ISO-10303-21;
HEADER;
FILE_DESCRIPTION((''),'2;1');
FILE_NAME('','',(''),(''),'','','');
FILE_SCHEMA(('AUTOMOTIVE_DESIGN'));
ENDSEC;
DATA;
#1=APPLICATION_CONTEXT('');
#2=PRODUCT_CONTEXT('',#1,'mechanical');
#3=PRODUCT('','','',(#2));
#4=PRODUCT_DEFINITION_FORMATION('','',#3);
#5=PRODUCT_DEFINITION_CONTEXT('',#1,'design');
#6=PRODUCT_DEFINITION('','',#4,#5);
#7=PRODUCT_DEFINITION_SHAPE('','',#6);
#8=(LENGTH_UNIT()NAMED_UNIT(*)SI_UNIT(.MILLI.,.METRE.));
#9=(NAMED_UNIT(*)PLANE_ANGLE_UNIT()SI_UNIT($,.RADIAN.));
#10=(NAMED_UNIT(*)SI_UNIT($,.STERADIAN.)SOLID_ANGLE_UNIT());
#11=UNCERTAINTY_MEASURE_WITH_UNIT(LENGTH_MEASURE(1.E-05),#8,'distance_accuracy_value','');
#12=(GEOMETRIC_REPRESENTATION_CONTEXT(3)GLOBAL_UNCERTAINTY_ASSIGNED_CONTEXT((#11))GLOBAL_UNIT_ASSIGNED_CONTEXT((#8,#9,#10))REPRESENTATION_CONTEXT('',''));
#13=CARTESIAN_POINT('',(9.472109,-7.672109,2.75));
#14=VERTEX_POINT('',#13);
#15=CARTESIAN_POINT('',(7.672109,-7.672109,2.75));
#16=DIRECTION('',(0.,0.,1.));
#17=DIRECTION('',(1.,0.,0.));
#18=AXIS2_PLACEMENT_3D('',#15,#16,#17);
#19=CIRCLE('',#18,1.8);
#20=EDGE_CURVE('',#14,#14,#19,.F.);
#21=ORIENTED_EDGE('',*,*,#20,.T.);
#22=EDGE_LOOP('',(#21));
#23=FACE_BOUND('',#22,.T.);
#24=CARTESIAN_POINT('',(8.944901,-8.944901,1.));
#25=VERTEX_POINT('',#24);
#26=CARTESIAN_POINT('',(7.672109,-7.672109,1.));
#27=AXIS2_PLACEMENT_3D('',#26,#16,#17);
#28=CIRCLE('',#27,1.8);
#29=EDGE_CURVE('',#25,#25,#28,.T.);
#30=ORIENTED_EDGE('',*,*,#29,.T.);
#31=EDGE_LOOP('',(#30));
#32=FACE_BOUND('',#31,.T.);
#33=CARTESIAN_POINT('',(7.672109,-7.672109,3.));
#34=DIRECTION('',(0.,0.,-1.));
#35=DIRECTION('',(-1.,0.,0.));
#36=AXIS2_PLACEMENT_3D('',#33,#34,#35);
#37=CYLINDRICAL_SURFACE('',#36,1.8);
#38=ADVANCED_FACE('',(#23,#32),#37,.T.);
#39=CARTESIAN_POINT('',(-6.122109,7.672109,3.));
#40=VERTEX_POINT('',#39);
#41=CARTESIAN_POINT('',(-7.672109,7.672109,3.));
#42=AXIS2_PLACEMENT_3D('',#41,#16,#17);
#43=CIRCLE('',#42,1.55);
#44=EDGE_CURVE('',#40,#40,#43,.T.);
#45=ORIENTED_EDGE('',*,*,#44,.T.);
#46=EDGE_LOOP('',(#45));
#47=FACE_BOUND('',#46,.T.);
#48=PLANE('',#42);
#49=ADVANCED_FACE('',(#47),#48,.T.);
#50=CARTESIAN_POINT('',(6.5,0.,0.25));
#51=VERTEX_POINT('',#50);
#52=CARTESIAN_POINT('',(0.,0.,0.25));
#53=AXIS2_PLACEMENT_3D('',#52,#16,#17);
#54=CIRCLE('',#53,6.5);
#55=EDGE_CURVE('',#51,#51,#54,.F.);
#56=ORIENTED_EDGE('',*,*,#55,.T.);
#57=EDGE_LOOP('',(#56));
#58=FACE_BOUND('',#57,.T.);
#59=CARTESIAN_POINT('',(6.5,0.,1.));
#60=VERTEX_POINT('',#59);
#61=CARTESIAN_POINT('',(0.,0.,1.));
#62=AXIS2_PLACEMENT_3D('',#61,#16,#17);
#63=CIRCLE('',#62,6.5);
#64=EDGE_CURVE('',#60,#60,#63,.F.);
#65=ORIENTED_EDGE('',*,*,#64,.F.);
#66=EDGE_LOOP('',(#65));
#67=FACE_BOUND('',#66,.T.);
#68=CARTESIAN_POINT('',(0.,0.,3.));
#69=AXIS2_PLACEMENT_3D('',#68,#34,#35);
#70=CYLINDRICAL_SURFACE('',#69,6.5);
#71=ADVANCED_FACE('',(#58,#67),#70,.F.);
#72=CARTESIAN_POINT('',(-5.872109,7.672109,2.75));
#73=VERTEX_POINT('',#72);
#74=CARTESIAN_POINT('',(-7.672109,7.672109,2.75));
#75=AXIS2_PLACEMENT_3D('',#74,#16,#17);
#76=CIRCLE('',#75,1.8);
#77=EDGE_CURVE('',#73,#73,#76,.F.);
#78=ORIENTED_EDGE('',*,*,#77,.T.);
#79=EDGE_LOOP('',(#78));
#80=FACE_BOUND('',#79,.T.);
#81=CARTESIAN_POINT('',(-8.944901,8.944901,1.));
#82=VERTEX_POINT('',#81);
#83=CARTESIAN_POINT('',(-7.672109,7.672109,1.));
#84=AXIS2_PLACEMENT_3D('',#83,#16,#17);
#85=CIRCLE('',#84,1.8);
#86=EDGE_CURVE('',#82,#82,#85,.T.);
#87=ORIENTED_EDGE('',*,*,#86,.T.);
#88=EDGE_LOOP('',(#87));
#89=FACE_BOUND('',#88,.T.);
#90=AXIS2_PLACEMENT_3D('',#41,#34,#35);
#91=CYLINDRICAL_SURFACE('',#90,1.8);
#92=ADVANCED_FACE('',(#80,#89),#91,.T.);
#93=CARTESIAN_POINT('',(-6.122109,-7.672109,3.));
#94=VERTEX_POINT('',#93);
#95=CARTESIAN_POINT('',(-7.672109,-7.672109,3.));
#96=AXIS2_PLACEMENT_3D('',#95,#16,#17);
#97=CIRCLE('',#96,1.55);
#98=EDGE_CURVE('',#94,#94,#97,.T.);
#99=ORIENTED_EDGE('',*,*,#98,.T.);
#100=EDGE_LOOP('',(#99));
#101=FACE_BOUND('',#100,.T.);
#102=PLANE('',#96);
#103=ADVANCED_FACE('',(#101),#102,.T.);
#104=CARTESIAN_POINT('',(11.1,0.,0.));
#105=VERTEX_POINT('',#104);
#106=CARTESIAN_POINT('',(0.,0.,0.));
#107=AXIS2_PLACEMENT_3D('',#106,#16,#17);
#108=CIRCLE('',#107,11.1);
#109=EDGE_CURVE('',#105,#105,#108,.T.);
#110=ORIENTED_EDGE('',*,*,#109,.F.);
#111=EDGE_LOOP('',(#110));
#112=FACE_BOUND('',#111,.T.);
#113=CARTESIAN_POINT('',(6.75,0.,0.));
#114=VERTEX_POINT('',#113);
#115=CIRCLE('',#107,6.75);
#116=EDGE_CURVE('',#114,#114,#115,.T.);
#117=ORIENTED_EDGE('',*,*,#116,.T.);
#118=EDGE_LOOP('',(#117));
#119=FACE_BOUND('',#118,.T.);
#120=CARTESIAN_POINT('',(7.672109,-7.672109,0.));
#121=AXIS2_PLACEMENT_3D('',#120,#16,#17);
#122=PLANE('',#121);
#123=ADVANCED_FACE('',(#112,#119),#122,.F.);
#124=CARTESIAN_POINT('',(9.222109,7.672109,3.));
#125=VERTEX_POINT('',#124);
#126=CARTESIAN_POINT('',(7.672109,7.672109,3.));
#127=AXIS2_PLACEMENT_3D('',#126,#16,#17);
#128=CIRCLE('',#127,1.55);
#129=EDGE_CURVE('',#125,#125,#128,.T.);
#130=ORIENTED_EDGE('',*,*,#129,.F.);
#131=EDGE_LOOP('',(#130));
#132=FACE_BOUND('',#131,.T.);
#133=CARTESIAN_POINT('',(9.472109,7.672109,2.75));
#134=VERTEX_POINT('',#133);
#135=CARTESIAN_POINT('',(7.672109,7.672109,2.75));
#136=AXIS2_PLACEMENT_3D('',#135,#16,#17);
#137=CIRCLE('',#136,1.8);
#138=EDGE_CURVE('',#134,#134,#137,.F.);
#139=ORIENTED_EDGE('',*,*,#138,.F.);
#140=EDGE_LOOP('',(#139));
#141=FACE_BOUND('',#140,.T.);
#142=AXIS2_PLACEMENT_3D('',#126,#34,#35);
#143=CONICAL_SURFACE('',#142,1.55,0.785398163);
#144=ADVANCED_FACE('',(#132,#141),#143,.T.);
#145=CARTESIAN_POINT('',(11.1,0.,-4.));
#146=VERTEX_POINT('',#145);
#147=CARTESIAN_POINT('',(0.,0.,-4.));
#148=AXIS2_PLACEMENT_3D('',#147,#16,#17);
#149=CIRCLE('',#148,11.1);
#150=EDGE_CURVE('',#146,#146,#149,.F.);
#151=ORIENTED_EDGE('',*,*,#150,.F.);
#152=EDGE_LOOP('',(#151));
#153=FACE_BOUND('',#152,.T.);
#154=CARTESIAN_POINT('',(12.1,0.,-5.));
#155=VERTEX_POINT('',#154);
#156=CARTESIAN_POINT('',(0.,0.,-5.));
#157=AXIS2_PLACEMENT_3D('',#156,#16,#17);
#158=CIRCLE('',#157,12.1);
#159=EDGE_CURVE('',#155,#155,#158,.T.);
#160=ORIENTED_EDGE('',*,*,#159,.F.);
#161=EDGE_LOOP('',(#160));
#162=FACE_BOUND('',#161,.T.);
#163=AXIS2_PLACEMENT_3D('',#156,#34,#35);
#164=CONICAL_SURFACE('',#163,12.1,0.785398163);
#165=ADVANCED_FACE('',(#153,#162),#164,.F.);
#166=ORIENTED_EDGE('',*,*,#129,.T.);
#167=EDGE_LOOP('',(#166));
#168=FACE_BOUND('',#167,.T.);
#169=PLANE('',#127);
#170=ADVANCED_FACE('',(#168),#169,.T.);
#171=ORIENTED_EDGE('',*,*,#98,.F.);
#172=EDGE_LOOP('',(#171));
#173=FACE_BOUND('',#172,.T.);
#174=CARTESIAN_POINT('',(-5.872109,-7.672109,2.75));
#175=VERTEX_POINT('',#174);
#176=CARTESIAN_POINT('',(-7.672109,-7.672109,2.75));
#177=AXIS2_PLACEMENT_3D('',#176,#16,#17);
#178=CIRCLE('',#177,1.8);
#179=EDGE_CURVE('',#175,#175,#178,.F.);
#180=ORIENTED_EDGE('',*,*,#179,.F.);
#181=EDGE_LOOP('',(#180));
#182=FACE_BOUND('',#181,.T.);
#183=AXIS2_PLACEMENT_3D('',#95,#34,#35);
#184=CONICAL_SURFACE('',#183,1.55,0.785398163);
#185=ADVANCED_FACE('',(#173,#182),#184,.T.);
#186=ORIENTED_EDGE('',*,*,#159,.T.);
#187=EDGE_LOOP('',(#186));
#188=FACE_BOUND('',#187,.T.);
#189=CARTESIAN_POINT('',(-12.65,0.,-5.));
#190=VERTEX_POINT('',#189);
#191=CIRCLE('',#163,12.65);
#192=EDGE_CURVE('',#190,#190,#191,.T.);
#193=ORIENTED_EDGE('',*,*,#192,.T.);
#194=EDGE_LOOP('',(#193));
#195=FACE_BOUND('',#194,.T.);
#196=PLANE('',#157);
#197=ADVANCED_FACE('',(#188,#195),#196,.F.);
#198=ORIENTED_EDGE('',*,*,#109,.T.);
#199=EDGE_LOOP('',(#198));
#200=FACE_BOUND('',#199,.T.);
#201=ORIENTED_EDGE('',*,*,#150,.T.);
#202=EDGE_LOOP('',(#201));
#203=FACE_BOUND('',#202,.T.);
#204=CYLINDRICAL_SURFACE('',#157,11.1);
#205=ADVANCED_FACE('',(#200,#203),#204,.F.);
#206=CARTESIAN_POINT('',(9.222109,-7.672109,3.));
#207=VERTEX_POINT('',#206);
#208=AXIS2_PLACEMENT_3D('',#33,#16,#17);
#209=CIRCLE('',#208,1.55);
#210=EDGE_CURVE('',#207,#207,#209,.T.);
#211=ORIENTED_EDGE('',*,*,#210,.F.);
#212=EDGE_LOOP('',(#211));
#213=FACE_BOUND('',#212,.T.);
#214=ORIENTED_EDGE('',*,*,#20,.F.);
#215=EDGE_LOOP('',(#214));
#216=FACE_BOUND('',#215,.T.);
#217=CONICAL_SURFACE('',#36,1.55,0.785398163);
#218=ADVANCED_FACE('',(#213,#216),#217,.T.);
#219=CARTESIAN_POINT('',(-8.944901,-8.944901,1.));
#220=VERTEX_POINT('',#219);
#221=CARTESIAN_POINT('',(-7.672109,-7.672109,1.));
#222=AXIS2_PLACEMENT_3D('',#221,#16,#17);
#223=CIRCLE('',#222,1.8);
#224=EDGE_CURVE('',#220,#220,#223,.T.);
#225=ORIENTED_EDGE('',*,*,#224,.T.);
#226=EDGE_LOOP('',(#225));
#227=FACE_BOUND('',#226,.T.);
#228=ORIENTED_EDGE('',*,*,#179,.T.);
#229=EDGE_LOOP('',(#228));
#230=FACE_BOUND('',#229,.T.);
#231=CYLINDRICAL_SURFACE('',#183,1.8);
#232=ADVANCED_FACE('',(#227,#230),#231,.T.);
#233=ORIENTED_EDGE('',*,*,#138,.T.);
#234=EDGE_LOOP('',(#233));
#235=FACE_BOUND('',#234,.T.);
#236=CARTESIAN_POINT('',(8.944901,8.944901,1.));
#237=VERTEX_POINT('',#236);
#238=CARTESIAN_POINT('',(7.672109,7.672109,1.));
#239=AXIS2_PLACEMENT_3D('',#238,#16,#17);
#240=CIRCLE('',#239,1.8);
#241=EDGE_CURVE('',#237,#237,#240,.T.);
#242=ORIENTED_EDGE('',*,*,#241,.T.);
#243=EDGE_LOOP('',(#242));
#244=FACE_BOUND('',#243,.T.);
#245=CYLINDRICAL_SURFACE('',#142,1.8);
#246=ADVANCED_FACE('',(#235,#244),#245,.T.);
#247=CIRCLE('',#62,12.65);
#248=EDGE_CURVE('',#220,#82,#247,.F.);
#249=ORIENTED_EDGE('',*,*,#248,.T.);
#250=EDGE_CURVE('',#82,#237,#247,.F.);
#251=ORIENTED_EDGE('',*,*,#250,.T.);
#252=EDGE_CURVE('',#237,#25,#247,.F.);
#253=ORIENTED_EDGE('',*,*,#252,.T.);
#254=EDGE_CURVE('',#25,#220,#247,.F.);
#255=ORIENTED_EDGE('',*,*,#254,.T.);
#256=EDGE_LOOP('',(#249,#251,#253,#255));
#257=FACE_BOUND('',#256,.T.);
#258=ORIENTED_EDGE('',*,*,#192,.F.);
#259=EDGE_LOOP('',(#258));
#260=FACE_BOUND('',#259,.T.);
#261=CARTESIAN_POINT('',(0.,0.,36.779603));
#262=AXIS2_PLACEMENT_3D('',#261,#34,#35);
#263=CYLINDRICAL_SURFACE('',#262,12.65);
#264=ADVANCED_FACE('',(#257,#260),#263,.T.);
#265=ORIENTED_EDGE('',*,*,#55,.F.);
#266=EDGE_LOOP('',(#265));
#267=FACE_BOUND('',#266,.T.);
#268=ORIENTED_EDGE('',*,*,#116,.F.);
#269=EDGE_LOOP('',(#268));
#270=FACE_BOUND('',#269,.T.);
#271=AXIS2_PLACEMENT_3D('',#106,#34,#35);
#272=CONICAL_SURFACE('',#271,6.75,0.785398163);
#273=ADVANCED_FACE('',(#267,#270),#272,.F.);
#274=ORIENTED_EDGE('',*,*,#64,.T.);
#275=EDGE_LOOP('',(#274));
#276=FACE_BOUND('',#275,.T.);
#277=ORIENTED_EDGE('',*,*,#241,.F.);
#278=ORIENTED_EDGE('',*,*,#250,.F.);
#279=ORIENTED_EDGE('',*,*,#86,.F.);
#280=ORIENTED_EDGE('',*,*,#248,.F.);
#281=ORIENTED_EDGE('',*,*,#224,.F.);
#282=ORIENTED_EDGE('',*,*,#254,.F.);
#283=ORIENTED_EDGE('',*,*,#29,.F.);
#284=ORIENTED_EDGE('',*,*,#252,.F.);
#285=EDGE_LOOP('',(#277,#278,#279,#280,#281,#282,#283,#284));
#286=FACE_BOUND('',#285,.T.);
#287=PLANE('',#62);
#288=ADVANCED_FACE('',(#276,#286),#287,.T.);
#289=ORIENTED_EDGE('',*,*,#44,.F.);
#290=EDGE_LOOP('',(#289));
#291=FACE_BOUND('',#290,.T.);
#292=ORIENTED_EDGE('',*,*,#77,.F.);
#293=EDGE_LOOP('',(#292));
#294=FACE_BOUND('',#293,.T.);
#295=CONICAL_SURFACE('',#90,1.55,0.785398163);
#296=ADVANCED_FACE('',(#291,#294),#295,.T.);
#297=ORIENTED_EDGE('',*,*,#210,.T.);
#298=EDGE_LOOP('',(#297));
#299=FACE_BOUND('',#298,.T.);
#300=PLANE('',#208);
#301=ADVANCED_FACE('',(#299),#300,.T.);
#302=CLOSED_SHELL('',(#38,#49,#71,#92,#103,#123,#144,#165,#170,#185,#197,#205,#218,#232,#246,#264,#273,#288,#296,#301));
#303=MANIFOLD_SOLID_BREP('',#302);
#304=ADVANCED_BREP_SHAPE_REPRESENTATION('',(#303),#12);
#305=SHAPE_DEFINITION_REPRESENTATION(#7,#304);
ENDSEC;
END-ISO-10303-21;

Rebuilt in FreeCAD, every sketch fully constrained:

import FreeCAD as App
import Part
import Sketcher
Q = App.Units.Quantity


def edges_at(feature, points):
    """Names of the edges that pass closest to the given points."""
    edges = feature.Shape.Edges
    near = lambda p: min(range(len(edges)), key=lambda i: edges[i].distToShape(Part.Vertex(*p))[0])
    return sorted({f"Edge{near(p) + 1}" for p in points})

doc = App.newDocument("Part")
body = doc.addObject("PartDesign::Body", "Body")

# Sketch on XY plane
sketch1 = body.newObject("Sketcher::SketchObject", "Sketch")
sketch1.AttachmentSupport = (doc.getObject("XY_Plane"), [""])
sketch1.MapMode = "FlatFace"
sketch1.addGeometry(Part.Circle(App.Vector(0, 0, 0), App.Vector(0, 0, 1), 13), False)
sketch1.addGeometry(Part.Circle(App.Vector(0, 0, 0), App.Vector(0, 0, 1), 11), False)
sketch1.addConstraint(Sketcher.Constraint("Coincident", 0, 3, -1, 1))
sketch1.addConstraint(Sketcher.Constraint("Coincident", 1, 3, -1, 1))
sketch1.addConstraint(Sketcher.Constraint("Diameter", 0, Q("25.2 mm")))
sketch1.addConstraint(Sketcher.Constraint("Diameter", 1, Q("22.2 mm")))
pad1 = body.newObject("PartDesign::Pad", "Pad")
pad1.Profile = sketch1
pad1.Length = 5
pad1.Reversed = True
doc.recompute()

chamfer = body.newObject("PartDesign::Chamfer", "Chamfer")
chamfer.Base = (pad1, edges_at(pad1, [(-11.1, 0, -5)]))
chamfer.Size = 1

# Sketch on XY plane
sketch2 = body.newObject("Sketcher::SketchObject", "Sketch001")
sketch2.AttachmentSupport = (doc.getObject("XY_Plane"), [""])
sketch2.MapMode = "FlatFace"
sketch2.addGeometry(Part.Circle(App.Vector(7.7, -7.7, 0), App.Vector(0, 0, 1), 1.8), False)
sketch2.addGeometry(Part.Circle(App.Vector(-7.7, -7.7, 0), App.Vector(0, 0, 1), 1.8), False)
sketch2.addGeometry(Part.Circle(App.Vector(-7.7, 7.7, 0), App.Vector(0, 0, 1), 1.8), False)
sketch2.addGeometry(Part.Circle(App.Vector(7.7, 7.7, 0), App.Vector(0, 0, 1), 1.8), False)
sketch2.addConstraint(Sketcher.Constraint("Equal", 0, 1))
sketch2.addConstraint(Sketcher.Constraint("Equal", 1, 2))
sketch2.addConstraint(Sketcher.Constraint("Equal", 2, 3))
sketch2.addConstraint(Sketcher.Constraint("Symmetric", 0, 3, 2, 3, -1, 1))
sketch2.addConstraint(Sketcher.Constraint("Symmetric", 1, 3, 3, 3, -1, 1))
sketch2.addConstraint(Sketcher.Constraint("Symmetric", 0, 3, 1, 3, -2))
sketch2.addConstraint(Sketcher.Constraint("Diameter", 0, Q("3.6 mm")))
sketch2.addConstraint(Sketcher.Constraint("DistanceX", -1, 1, 0, 3, Q("7.672109 mm")))
sketch2.addConstraint(Sketcher.Constraint("DistanceY", 0, 3, -1, 1, Q("7.672109 mm")))
pad2 = body.newObject("PartDesign::Pad", "Pad001")
pad2.Profile = sketch2
pad2.Length = 3

# Sketch on XY plane
sketch3 = body.newObject("Sketcher::SketchObject", "Sketch002")
sketch3.AttachmentSupport = (doc.getObject("XY_Plane"), [""])
sketch3.MapMode = "FlatFace"
sketch3.AttachmentOffset = App.Placement(App.Vector(0, 0, 1), App.Rotation())
sketch3.addGeometry(Part.Circle(App.Vector(0, 0, 0), App.Vector(0, 0, 1), 13), False)
sketch3.addConstraint(Sketcher.Constraint("Coincident", 0, 3, -1, 1))
sketch3.addConstraint(Sketcher.Constraint("Diameter", 0, Q("25.2 mm")))
pad3 = body.newObject("PartDesign::Pad", "Pad002")
pad3.Profile = sketch3
pad3.Length = 1
pad3.Reversed = True

# Sketch on XY plane
sketch4 = body.newObject("Sketcher::SketchObject", "Sketch003")
sketch4.AttachmentSupport = (doc.getObject("XY_Plane"), [""])
sketch4.MapMode = "FlatFace"
sketch4.addGeometry(Part.Circle(App.Vector(0, 0, 0), App.Vector(0, 0, 1), 6), False)
sketch4.addConstraint(Sketcher.Constraint("Coincident", 0, 3, -1, 1))
sketch4.addConstraint(Sketcher.Constraint("Diameter", 0, Q("13 mm")))
pocket1 = body.newObject("PartDesign::Pocket", "Pocket")
pocket1.Profile = sketch4
pocket1.Type = "ThroughAll"
pocket1.Reversed = True
doc.recompute()

chamfer2 = body.newObject("PartDesign::Chamfer", "Chamfer001")
chamfer2.Base = (pocket1, edges_at(pocket1, [
    (8.87, -6.328, 3),
    (-6.119, -6.761, 3),
    (-6.119, 6.761, 3),
    (8.87, 6.328, 3),
]))
chamfer2.Size = 0.25
doc.recompute()

chamfer3 = body.newObject("PartDesign::Chamfer", "Chamfer002")
chamfer3.Base = (chamfer2, edges_at(chamfer2, [(-6.5, 0, 0)]))
chamfer3.Size = 0.25

# Sketch on XY plane
sketch5 = body.newObject("Sketcher::SketchObject", "Sketch004")
sketch5.AttachmentSupport = (doc.getObject("XY_Plane"), [""])
sketch5.MapMode = "FlatFace"
sketch5.AttachmentOffset = App.Placement(App.Vector(0, 0, 1), App.Rotation())
sketch5.addGeometry(Part.Circle(App.Vector(0, 0, 0), App.Vector(0, 0, 1), 13), False)
sketch5.addGeometry(Part.Circle(App.Vector(0, 0, 0), App.Vector(0, 0, 1), 13), False)
sketch5.addConstraint(Sketcher.Constraint("Coincident", 0, 3, -1, 1))
sketch5.addConstraint(Sketcher.Constraint("Coincident", 1, 3, -1, 1))
sketch5.addConstraint(Sketcher.Constraint("Diameter", 0, Q("25.3 mm")))
sketch5.addConstraint(Sketcher.Constraint("Diameter", 1, Q("25.2 mm")))
pad4 = body.newObject("PartDesign::Pad", "Pad003")
pad4.Profile = sketch5
pad4.Length = 6
pad4.Reversed = True

doc.recompute()
